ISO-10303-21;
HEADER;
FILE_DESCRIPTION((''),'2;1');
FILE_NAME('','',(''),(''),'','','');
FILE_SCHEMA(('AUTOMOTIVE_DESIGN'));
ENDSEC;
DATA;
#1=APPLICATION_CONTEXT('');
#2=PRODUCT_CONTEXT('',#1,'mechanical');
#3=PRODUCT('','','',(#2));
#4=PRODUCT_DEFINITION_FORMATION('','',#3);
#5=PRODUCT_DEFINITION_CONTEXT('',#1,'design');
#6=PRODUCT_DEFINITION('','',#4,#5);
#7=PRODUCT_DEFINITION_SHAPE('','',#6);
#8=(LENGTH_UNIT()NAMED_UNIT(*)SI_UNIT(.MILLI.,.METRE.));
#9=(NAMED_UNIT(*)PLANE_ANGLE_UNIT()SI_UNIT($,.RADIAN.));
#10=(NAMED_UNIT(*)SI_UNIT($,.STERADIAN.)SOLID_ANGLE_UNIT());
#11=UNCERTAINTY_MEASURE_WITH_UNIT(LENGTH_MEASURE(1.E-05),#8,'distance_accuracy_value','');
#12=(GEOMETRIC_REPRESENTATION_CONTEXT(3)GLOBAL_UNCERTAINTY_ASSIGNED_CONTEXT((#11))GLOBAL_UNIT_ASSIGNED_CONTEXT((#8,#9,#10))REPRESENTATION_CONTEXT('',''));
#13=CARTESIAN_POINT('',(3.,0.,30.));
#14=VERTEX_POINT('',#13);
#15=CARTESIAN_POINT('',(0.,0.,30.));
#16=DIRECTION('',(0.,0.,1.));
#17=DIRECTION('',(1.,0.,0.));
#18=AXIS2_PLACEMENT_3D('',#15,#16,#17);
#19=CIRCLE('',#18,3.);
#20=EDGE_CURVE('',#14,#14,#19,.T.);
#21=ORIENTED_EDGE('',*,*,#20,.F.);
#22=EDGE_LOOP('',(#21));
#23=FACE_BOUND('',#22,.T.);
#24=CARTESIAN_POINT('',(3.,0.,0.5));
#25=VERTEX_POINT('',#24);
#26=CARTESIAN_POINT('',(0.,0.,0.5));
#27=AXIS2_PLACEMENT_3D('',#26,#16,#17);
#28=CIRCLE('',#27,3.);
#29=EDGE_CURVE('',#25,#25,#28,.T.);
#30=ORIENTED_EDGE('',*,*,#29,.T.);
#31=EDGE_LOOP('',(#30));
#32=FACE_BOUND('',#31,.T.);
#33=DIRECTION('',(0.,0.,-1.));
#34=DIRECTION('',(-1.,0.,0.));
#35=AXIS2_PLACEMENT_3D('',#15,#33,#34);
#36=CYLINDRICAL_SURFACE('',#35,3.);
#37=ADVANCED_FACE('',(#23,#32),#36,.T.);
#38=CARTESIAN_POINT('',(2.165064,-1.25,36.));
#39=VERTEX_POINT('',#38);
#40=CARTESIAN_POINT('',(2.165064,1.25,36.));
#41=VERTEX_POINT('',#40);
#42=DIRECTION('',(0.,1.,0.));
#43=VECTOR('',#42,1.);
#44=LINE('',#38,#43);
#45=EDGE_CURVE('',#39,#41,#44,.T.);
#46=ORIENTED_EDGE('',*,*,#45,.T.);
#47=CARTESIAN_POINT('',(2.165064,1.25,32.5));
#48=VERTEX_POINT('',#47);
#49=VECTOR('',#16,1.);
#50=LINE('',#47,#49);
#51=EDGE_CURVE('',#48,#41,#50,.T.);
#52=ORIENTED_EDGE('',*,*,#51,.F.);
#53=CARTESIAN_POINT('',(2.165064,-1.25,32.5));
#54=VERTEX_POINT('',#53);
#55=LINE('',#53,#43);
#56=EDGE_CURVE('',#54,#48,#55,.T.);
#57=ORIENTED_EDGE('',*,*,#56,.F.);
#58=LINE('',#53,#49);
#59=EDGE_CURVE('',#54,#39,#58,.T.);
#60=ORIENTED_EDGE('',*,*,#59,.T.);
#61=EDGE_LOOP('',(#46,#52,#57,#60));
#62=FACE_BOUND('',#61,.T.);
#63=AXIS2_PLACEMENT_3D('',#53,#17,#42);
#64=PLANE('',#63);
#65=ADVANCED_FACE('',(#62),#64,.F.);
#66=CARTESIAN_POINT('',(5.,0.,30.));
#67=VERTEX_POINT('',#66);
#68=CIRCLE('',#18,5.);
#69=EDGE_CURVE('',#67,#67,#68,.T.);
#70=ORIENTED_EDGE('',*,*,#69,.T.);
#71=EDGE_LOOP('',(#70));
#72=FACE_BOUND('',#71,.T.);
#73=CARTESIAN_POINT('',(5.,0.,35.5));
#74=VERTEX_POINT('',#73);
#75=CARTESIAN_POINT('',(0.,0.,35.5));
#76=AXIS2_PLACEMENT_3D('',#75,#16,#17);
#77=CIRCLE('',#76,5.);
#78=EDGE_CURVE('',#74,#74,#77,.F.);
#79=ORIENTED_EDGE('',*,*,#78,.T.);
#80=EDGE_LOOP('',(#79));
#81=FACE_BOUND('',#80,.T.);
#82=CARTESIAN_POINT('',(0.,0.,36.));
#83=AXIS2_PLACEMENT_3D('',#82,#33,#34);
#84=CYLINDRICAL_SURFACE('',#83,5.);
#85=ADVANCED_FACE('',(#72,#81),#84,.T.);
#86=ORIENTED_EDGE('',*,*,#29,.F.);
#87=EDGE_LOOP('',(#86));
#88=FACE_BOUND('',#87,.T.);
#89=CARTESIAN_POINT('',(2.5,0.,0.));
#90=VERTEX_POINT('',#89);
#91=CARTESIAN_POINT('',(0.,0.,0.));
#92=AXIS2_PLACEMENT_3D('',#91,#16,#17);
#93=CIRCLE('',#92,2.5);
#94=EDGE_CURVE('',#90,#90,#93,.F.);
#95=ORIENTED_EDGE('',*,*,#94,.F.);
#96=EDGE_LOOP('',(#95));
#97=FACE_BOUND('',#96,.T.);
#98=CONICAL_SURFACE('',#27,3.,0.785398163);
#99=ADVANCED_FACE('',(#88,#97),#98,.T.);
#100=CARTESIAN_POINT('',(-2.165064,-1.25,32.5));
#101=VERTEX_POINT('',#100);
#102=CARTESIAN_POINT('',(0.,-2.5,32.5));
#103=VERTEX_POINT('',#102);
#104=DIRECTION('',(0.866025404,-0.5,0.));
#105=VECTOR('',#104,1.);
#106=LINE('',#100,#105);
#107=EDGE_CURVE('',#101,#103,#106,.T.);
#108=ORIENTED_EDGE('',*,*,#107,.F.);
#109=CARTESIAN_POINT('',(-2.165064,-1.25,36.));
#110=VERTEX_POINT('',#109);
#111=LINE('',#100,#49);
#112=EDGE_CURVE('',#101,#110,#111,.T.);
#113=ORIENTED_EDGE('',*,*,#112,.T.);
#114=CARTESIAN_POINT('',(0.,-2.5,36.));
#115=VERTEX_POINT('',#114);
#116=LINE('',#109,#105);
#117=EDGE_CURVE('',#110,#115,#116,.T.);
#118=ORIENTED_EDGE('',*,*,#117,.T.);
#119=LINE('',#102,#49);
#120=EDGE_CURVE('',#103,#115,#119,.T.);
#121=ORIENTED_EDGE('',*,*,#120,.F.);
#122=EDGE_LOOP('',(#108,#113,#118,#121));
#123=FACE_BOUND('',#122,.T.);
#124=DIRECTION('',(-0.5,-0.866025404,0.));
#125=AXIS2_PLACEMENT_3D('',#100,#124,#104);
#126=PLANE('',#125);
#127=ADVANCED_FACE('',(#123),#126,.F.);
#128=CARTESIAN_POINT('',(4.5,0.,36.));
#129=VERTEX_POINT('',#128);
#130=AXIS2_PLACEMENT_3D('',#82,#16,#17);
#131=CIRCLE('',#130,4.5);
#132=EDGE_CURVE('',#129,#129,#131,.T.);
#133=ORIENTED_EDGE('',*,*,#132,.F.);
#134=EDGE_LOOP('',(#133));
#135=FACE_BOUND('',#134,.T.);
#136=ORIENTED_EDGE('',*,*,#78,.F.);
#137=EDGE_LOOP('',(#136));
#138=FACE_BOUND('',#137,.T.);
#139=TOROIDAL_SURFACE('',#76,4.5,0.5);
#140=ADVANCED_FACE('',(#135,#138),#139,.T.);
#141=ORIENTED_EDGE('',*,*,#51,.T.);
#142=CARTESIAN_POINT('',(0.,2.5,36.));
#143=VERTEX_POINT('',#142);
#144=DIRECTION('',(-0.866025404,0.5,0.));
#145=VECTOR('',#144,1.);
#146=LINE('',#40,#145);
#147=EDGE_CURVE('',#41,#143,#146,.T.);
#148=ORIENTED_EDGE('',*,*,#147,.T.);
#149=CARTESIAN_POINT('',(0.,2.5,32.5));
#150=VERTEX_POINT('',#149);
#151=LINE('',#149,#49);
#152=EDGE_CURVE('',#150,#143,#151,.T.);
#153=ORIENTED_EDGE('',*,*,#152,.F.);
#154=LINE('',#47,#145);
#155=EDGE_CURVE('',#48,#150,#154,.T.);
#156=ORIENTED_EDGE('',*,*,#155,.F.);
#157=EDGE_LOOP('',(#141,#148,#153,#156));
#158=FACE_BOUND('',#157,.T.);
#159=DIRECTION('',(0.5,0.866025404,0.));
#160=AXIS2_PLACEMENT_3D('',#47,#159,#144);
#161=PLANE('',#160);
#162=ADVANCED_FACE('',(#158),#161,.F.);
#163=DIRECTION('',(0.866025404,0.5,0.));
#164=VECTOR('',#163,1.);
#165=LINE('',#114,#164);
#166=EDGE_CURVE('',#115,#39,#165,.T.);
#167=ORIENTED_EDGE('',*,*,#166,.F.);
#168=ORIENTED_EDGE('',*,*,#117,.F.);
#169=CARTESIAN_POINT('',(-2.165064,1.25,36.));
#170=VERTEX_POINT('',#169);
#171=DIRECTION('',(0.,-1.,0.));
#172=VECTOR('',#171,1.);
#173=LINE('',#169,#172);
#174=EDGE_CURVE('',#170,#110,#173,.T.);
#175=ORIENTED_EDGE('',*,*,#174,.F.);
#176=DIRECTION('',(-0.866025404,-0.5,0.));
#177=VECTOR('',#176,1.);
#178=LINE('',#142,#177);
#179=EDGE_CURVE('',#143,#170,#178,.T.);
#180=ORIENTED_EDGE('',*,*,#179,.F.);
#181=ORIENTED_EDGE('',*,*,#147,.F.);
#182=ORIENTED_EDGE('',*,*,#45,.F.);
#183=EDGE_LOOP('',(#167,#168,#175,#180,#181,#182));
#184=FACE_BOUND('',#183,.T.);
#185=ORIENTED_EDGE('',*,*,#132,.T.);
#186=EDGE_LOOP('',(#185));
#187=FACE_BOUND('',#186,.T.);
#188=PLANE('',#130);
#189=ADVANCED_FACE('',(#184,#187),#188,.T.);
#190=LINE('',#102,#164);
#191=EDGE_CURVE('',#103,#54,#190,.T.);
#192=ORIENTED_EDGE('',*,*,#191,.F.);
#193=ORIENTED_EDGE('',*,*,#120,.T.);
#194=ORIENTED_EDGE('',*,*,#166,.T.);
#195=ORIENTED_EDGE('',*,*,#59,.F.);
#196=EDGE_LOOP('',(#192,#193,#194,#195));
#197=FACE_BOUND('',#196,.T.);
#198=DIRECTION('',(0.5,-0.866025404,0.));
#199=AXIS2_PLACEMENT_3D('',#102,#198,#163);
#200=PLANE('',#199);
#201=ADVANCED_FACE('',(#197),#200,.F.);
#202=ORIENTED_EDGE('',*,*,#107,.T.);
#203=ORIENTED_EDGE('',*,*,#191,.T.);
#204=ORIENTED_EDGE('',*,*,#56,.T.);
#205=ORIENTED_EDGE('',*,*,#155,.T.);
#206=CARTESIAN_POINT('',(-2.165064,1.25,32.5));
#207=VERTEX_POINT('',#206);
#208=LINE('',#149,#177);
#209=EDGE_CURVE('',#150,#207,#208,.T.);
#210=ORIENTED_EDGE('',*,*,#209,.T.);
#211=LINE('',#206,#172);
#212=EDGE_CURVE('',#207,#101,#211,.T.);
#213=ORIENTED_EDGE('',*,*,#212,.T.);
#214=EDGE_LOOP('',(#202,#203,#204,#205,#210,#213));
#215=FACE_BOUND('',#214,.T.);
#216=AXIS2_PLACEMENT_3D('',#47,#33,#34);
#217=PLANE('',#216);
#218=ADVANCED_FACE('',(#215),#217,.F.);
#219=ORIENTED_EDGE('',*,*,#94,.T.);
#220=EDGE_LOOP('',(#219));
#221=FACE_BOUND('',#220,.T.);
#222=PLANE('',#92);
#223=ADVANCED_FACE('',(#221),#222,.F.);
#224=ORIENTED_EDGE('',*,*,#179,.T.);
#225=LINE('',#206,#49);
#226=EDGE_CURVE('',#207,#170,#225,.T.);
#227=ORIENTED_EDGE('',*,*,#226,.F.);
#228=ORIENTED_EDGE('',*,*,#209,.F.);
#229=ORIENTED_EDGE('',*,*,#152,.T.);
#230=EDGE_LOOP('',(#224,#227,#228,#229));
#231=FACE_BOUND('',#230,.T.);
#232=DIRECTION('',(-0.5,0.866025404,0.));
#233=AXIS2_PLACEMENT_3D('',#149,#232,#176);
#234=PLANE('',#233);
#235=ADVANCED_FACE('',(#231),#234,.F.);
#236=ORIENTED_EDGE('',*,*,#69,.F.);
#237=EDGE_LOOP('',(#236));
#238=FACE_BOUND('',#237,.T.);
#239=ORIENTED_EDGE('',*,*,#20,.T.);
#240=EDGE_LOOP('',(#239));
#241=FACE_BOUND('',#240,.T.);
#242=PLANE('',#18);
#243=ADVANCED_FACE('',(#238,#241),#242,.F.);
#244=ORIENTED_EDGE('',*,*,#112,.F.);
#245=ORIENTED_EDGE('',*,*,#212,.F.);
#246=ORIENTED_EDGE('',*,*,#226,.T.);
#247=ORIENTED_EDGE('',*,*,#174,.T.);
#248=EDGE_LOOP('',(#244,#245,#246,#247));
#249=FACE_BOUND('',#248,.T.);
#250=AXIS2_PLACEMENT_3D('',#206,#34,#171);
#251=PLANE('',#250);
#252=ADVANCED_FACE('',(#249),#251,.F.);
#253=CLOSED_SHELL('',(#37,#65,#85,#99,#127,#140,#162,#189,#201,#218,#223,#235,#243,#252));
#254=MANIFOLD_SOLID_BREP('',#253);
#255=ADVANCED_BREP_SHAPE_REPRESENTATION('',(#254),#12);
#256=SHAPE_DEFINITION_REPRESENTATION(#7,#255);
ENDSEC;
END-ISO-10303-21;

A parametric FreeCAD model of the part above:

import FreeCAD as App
import Part
import Sketcher
Q = App.Units.Quantity


def edges_at(feature, points):
    """Names of the edges that pass closest to the given points."""
    edges = feature.Shape.Edges
    near = lambda p: min(range(len(edges)), key=lambda i: edges[i].distToShape(Part.Vertex(*p))[0])
    return sorted({f"Edge{near(p) + 1}" for p in points})


def add_polygon(sketch, points):
    """Adds a closed chain of lines whose ends are joined by coincident constraints."""
    first, n = sketch.GeometryCount, len(points)
    for a, b in zip(points, points[1:] + points[:1]):
        sketch.addGeometry(Part.LineSegment(App.Vector(*a, 0), App.Vector(*b, 0)), False)
    for i in range(n):
        sketch.addConstraint(Sketcher.Constraint("Coincident", first + i, 2, first + (i + 1) % n, 1))

doc = App.newDocument("Part")
body = doc.addObject("PartDesign::Body", "Body")

# Sketch on XY plane
sketch1 = doc.addObject("Sketcher::SketchObject", "Sketch")
body.addObject(sketch1)
sketch1.AttachmentSupport = (doc.XY_Plane, [""])
sketch1.MapMode = "FlatFace"
sketch1.addGeometry(Part.Circle(App.Vector(0, 0, 0), App.Vector(0, 0, 1), 3), False)
sketch1.addConstraint(Sketcher.Constraint("Coincident", 0, 3, -1, 1))
sketch1.addConstraint(Sketcher.Constraint("Diameter", 0, Q("6 mm")))
pad1 = doc.addObject("PartDesign::Pad", "Pad")
body.addObject(pad1)
pad1.Profile = sketch1
pad1.Length = 36
doc.recompute()

chamfer = doc.addObject("PartDesign::Chamfer", "Chamfer")
body.addObject(chamfer)
chamfer.Base = (pad1, edges_at(pad1, [(-3, 0, 0)]))
chamfer.Size = 0.5

# Sketch on XY plane
sketch2 = doc.addObject("Sketcher::SketchObject", "Sketch001")
body.addObject(sketch2)
sketch2.AttachmentSupport = (doc.XY_Plane, [""])
sketch2.MapMode = "FlatFace"
sketch2.AttachmentOffset = App.Placement(App.Vector(0, 0, 30), App.Rotation())
sketch2.addGeometry(Part.Circle(App.Vector(0, 0, 0), App.Vector(0, 0, 1), 5), False)
sketch2.addConstraint(Sketcher.Constraint("Coincident", 0, 3, -1, 1))
sketch2.addConstraint(Sketcher.Constraint("Diameter", 0, Q("10 mm")))
pad2 = doc.addObject("PartDesign::Pad", "Pad001")
body.addObject(pad2)
pad2.Profile = sketch2
pad2.Length = 6

# Sketch on XY plane
sketch3 = doc.addObject("Sketcher::SketchObject", "Sketch002")
body.addObject(sketch3)
sketch3.AttachmentSupport = (doc.XY_Plane, [""])
sketch3.MapMode = "FlatFace"
sketch3.AttachmentOffset = App.Placement(App.Vector(0, 0, 36), App.Rotation())
add_polygon(sketch3, [(0, 2.5), (-2.2, 1.2), (-2.2, -1.2), (0, -2.5), (2.2, -1.2), (2.2, 1.2)])  # lines 0-5
sketch3.addConstraint(Sketcher.Constraint("Vertical", 1))
sketch3.addConstraint(Sketcher.Constraint("Vertical", 4))
sketch3.addConstraint(Sketcher.Constraint("Symmetric", 0, 2, 3, 2, -1, 1))
sketch3.addConstraint(Sketcher.Constraint("Symmetric", 2, 2, 5, 2, -1, 1))
sketch3.addConstraint(Sketcher.Constraint("PointOnObject", 2, 2, -2))
sketch3.addConstraint(Sketcher.Constraint("Parallel", 2, 5))
sketch3.addConstraint(Sketcher.Constraint("Horizontal", 1, 2, 3, 2))
sketch3.addConstraint(Sketcher.Constraint("Angle", 0, Q("-150 deg")))
sketch3.addConstraint(Sketcher.Constraint("DistanceY", 1, 2, 1, 1, Q("2.5 mm")))
sketch3.addConstraint(Sketcher.Constraint("DistanceY", 2, 2, 5, 2, Q("5 mm")))
pocket1 = doc.addObject("PartDesign::Pocket", "Pocket")
body.addObject(pocket1)
pocket1.Profile = sketch3
pocket1.Length = 3.5
doc.recompute()

fillet = doc.addObject("PartDesign::Fillet", "Fillet")
body.addObject(fillet)
fillet.Base = (pocket1, edges_at(pocket1, [(-5, 0, 36)]))
fillet.Radius = 0.5

doc.recompute()
